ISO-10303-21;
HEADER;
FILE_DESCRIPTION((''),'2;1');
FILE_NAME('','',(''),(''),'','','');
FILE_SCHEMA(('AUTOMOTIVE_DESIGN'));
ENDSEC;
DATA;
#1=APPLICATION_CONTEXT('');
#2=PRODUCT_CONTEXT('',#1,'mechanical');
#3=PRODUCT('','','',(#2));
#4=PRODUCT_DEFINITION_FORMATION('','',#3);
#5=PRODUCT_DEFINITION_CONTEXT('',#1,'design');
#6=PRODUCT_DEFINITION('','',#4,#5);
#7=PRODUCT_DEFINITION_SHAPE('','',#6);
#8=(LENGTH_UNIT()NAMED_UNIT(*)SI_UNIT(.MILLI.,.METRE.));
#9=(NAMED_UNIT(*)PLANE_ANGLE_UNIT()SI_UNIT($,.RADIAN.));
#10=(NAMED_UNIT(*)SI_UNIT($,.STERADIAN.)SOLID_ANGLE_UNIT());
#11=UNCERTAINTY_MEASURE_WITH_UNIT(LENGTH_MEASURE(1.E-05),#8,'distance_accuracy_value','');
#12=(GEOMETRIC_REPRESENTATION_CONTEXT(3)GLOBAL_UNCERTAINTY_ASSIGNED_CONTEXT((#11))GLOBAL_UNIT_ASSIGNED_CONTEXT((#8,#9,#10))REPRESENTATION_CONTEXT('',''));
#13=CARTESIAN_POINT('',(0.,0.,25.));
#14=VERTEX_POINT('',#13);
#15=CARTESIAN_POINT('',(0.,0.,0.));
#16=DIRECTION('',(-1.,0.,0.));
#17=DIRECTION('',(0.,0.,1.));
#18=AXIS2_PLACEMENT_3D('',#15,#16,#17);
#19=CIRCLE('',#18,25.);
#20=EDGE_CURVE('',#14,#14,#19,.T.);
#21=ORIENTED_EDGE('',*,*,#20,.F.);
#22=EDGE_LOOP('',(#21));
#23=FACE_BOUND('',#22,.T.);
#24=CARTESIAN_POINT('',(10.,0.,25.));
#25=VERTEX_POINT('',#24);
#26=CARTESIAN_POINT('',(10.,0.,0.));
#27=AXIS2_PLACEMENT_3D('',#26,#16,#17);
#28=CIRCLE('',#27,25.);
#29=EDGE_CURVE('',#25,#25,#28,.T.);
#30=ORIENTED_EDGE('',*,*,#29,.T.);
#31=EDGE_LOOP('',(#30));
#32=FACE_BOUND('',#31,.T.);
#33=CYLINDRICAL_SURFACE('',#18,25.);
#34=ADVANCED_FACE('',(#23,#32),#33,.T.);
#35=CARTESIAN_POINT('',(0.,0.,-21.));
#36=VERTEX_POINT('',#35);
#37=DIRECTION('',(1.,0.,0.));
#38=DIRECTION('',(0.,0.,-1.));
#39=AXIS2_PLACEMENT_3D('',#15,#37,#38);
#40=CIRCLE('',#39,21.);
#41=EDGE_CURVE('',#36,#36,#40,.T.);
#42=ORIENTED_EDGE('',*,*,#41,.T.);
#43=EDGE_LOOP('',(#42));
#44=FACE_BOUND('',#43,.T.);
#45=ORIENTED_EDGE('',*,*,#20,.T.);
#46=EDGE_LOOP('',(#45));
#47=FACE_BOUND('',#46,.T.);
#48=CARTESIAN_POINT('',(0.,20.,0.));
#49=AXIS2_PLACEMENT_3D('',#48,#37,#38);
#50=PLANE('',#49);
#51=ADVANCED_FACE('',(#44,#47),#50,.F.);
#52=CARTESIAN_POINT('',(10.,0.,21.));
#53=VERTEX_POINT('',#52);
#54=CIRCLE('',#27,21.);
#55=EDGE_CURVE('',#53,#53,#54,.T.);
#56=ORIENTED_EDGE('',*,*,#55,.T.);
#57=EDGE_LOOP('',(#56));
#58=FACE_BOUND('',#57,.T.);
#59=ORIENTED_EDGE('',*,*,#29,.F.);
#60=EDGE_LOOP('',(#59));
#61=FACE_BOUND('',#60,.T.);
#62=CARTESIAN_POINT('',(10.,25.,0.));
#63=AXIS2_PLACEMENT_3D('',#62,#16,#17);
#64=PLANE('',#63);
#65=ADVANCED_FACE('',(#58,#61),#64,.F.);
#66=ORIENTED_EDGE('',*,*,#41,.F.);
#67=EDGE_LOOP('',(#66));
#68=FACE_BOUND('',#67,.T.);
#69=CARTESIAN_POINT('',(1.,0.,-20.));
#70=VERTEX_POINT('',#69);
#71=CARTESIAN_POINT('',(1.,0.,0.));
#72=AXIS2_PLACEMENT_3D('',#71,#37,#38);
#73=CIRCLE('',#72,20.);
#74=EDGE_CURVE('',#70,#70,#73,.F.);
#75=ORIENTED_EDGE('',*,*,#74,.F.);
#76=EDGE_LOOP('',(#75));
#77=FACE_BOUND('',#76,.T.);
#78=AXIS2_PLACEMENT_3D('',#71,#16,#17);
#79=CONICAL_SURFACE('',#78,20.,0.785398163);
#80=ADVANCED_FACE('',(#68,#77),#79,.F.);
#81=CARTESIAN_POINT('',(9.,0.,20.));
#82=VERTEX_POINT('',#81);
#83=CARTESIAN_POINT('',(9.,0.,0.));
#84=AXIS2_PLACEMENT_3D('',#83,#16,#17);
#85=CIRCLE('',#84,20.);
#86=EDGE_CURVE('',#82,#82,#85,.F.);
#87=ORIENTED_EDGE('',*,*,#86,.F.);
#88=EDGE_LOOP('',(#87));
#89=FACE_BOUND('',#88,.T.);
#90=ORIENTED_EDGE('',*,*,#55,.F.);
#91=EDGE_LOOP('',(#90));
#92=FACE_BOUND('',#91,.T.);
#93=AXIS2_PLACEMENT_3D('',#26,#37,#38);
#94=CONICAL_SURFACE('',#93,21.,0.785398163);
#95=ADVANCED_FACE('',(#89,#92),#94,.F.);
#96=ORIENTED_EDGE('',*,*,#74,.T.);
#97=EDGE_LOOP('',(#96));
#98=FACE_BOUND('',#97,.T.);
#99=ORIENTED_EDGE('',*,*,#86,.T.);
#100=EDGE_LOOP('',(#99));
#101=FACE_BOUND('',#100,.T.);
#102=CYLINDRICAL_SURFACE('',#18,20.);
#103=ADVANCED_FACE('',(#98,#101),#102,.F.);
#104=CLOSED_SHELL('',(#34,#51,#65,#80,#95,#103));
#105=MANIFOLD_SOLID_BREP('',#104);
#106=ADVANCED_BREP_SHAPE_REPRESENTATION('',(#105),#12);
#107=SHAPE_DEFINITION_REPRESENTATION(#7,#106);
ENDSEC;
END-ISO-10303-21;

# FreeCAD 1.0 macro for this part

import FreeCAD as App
import Part
import Sketcher


def edges_at(feature, points):
    """Names of the edges that pass closest to the given points."""
    edges = feature.Shape.Edges
    near = lambda p: min(range(len(edges)), key=lambda i: edges[i].distToShape(Part.Vertex(*p))[0])
    return sorted({f"Edge{near(p) + 1}" for p in points})

doc = App.newDocument("Part")
body = doc.addObject("PartDesign::Body", "Body")

# Sketch on XY plane
sketch1 = body.newObject("Sketcher::SketchObject", "Sketch")
sketch1.AttachmentSupport = (doc.getObject("XY_Plane"), [""])
sketch1.MapMode = "FlatFace"
sketch1.addGeometry([
    Part.LineSegment(App.Vector(0, 25, 0), App.Vector(0, 20, 0)),
    Part.LineSegment(App.Vector(0, 20, 0), App.Vector(10, 20, 0)),
    Part.LineSegment(App.Vector(10, 20, 0), App.Vector(10, 25, 0)),
    Part.LineSegment(App.Vector(10, 25, 0), App.Vector(0, 25, 0)),
], False)
sketch1.addConstraint([
    Sketcher.Constraint("Coincident", 0, 2, 1, 1),
    Sketcher.Constraint("Coincident", 1, 2, 2, 1),
    Sketcher.Constraint("Coincident", 2, 2, 3, 1),
    Sketcher.Constraint("Coincident", 3, 2, 0, 1),
    Sketcher.Constraint("Vertical", 0),
    Sketcher.Constraint("Horizontal", 1),
    Sketcher.Constraint("Vertical", 2),
    Sketcher.Constraint("Horizontal", 3),
    Sketcher.Constraint("PointOnObject", 0, 2, -2),
    Sketcher.Constraint("DistanceX", 1, 1, 1, 2, 10.0),
    Sketcher.Constraint("DistanceY", 0, 2, 0, 1, 5.0),
    Sketcher.Constraint("DistanceY", -1, 1, 0, 2, 20.0),
])
revolution = body.newObject("PartDesign::Revolution", "Revolution")
revolution.Profile = sketch1
revolution.ReferenceAxis = (sketch1, ["H_Axis"])
revolution.Angle = 360
doc.recompute()

chamfer = body.newObject("PartDesign::Chamfer", "Chamfer")
chamfer.Base = (revolution, edges_at(revolution, [(0, -20, 0), (10, -20, 0)]))
chamfer.Size = 1

doc.recompute()
